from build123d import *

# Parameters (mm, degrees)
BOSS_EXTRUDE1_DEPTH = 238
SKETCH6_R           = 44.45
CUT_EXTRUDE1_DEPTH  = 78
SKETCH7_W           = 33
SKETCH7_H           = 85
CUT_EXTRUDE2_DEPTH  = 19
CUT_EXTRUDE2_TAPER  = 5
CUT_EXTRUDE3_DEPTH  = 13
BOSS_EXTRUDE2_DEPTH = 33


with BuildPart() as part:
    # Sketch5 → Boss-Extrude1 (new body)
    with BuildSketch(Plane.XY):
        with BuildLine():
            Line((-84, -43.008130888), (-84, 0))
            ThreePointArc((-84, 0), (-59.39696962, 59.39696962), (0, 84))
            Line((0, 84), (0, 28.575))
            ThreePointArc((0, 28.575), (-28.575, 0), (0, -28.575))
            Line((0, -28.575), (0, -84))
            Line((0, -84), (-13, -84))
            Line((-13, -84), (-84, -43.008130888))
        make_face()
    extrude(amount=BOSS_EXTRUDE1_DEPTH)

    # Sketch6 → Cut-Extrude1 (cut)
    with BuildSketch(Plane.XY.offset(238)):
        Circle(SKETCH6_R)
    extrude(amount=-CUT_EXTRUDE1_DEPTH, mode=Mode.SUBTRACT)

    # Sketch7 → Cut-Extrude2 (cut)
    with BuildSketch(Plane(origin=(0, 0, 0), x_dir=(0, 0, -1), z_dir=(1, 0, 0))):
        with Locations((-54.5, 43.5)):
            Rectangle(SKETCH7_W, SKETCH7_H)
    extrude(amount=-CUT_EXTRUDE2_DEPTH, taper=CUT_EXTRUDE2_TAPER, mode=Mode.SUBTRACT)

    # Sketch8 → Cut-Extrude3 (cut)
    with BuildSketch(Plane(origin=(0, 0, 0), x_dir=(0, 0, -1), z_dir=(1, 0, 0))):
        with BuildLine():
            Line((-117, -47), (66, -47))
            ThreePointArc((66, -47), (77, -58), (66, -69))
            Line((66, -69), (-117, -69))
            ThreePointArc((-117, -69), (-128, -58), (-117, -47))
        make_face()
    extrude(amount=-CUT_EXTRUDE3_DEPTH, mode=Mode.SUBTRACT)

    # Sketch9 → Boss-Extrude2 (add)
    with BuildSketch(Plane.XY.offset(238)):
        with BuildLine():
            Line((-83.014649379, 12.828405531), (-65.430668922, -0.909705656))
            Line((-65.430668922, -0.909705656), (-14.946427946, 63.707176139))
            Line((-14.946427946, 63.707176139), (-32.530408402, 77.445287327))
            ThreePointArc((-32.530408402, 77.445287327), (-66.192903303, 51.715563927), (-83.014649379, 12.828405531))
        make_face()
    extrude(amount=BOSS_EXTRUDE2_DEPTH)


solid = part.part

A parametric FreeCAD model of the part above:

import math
import FreeCAD as App
import Part
import Sketcher

V = App.Vector
Q = App.Units.Quantity


def add_polygon(sketch, points):
    """Adds a closed chain of lines whose ends are joined by coincident constraints."""
    first, n = sketch.GeometryCount, len(points)
    for a, b in zip(points, points[1:] + points[:1]):
        sketch.addGeometry(Part.LineSegment(App.Vector(*a, 0), App.Vector(*b, 0)), False)
    for i in range(n):
        sketch.addConstraint(Sketcher.Constraint("Coincident", first + i, 2, first + (i + 1) % n, 1))

doc = App.newDocument("Part")
body = doc.addObject("PartDesign::Body", "Body")

# Sketch on XY plane
sketch1 = body.newObject("Sketcher::SketchObject", "Sketch")
sketch1.AttachmentSupport = (doc.getObject("XY_Plane"), [""])
sketch1.MapMode = "FlatFace"
sketch1.addGeometry([
    Part.LineSegment(V(-84, 0, 0), V(-84, -43, 0)),  # 0
    Part.LineSegment(V(-84, -43, 0), V(-13, -84, 0)),  # 1
    Part.LineSegment(V(-13, -84, 0), V(0, -84, 0)),  # 2
    Part.LineSegment(V(0, -84, 0), V(0, -29, 0)),  # 3
    Part.ArcOfCircle(Part.Circle(V(0, 0, 0), V(0, 0, 1), 29), math.radians(90), math.radians(270)),  # 4
    Part.LineSegment(V(0, 29, 0), V(0, 84, 0)),  # 5
    Part.ArcOfCircle(Part.Circle(V(0, 0, 0), V(0, 0, 1), 84), math.radians(90), math.radians(180)),  # 6
], False)
sketch1.addConstraint([
    Sketcher.Constraint("Coincident", 0, 2, 1, 1),
    Sketcher.Constraint("Coincident", 1, 2, 2, 1),
    Sketcher.Constraint("Coincident", 2, 2, 3, 1),
    Sketcher.Constraint("Coincident", 3, 2, 4, 2),
    Sketcher.Constraint("Coincident", 4, 1, 5, 1),
    Sketcher.Constraint("Coincident", 5, 2, 6, 1),
    Sketcher.Constraint("Tangent", 6, 2, 0, 1),
    Sketcher.Constraint("Vertical", 0),
    Sketcher.Constraint("Horizontal", 2),
    Sketcher.Constraint("Vertical", 3),
    Sketcher.Constraint("Vertical", 5),
    Sketcher.Constraint("Coincident", 4, 3, -1, 1),
    Sketcher.Constraint("Coincident", 6, 3, -1, 1),
    Sketcher.Constraint("Symmetric", 2, 2, 5, 2, -1, 1),
    Sketcher.Constraint("PointOnObject", 2, 2, -2),
    Sketcher.Constraint("Radius", 6, 84.0),
    Sketcher.Constraint("DistanceX", 2, 1, 2, 2, 13.0),
    Sketcher.Constraint("Angle", 1, Q("-30 deg")),
    Sketcher.Constraint("Radius", 4, 28.575),
])
pad1 = body.newObject("PartDesign::Pad", "Pad")
pad1.Profile = sketch1
pad1.Length = 238

# Sketch on XY plane
sketch2 = body.newObject("Sketcher::SketchObject", "Sketch001")
sketch2.AttachmentSupport = (doc.getObject("XY_Plane"), [""])
sketch2.MapMode = "FlatFace"
sketch2.AttachmentOffset = App.Placement(V(0, 0, 238), App.Rotation())
sketch2.addGeometry(Part.Circle(V(0, 0, 0), V(0, 0, 1), 44), False)
sketch2.addConstraint([
    Sketcher.Constraint("Coincident", 0, 3, -1, 1),
    Sketcher.Constraint("Diameter", 0, 88.9),
])
pocket1 = body.newObject("PartDesign::Pocket", "Pocket")
pocket1.Profile = sketch2
pocket1.Length = 78

# Sketch on YZ plane
sketch3 = body.newObject("Sketcher::SketchObject", "Sketch002")
sketch3.AttachmentSupport = (doc.getObject("YZ_Plane"), [""])
sketch3.MapMode = "FlatFace"
add_polygon(sketch3, [(86, 71), (1, 71), (1, 38), (86, 38)])  # lines 0-3
sketch3.addConstraint([
    Sketcher.Constraint("Horizontal", 0),
    Sketcher.Constraint("Vertical", 1),
    Sketcher.Constraint("Horizontal", 2),
    Sketcher.Constraint("Vertical", 3),
    Sketcher.Constraint("DistanceX", 0, 2, 0, 1, 85.0),
    Sketcher.Constraint("DistanceY", 1, 2, 1, 1, 33.0),
    Sketcher.Constraint("DistanceX", -1, 1, 0, 2, 1.0),
    Sketcher.Constraint("DistanceY", -1, 1, 0, 2, 71.0),
])
pocket2 = body.newObject("PartDesign::Pocket", "Pocket001")
pocket2.Profile = sketch3
pocket2.Length = 19
pocket2.TaperAngle = -5

# Sketch on YZ plane
sketch4 = body.newObject("Sketcher::SketchObject", "Sketch003")
sketch4.AttachmentSupport = (doc.getObject("YZ_Plane"), [""])
sketch4.MapMode = "FlatFace"
sketch4.addGeometry([
    Part.LineSegment(V(-47, -66, 0), V(-47, 117, 0)),
    Part.ArcOfCircle(Part.Circle(V(-58, 117, 0), V(0, 0, 1), 11), math.radians(0), math.radians(180)),
    Part.LineSegment(V(-69, 117, 0), V(-69, -66, 0)),
    Part.ArcOfCircle(Part.Circle(V(-58, -66, 0), V(0, 0, 1), 11), math.radians(180), math.radians(360)),
], False)
sketch4.addConstraint([
    Sketcher.Constraint("Tangent", 0, 2, 1, 1),
    Sketcher.Constraint("Tangent", 1, 2, 2, 1),
    Sketcher.Constraint("Tangent", 2, 2, 3, 1),
    Sketcher.Constraint("Tangent", 3, 2, 0, 1),
    Sketcher.Constraint("Vertical", 0),
    Sketcher.Constraint("Vertical", 2),
    Sketcher.Constraint("Radius", 1, 11.0),
    Sketcher.Constraint("DistanceY", 0, 1, 0, 2, 183.0),
    Sketcher.Constraint("DistanceX", 1, 3, -1, 1, 58.0),
    Sketcher.Constraint("DistanceY", -1, 1, 1, 3, 117.0),
])
pocket3 = body.newObject("PartDesign::Pocket", "Pocket002")
pocket3.Profile = sketch4
pocket3.Length = 13

# Sketch on XY plane
sketch5 = body.newObject("Sketcher::SketchObject", "Sketch004")
sketch5.AttachmentSupport = (doc.getObject("XY_Plane"), [""])
sketch5.MapMode = "FlatFace"
sketch5.AttachmentOffset = App.Placement(V(0, 0, 238), App.Rotation())
sketch5.addGeometry([
    Part.LineSegment(V(-83, 13, 0), V(-65, -1, 0)),
    Part.LineSegment(V(-65, -1, 0), V(-15, 64, 0)),
    Part.LineSegment(V(-15, 64, 0), V(-33, 77, 0)),
    Part.ArcOfCircle(Part.Circle(V(0, 0, 0), V(0, 0, 1), 84), math.radians(113), math.radians(171)),
], False)
sketch5.addConstraint([
    Sketcher.Constraint("Coincident", 0, 2, 1, 1),
    Sketcher.Constraint("Coincident", 1, 2, 2, 1),
    Sketcher.Constraint("Coincident", 2, 2, 3, 1),
    Sketcher.Constraint("Coincident", 3, 2, 0, 1),
    Sketcher.Constraint("Coincident", 3, 3, -1, 1),
    Sketcher.Constraint("Perpendicular", 0, 1),
    Sketcher.Constraint("Perpendicular", 1, 2),
    Sketcher.Constraint("Equal", 0, 2),
    Sketcher.Constraint("Radius", 3, 84.0),
    Sketcher.Constraint("Angle", 0, Q("-38 deg")),
    Sketcher.Constraint("Distance", 1, 82.0),
    Sketcher.Constraint("Distance", 0, 22.314391),
])
pad2 = body.newObject("PartDesign::Pad", "Pad001")
pad2.Profile = sketch5
pad2.Length = 33

doc.recompute()
